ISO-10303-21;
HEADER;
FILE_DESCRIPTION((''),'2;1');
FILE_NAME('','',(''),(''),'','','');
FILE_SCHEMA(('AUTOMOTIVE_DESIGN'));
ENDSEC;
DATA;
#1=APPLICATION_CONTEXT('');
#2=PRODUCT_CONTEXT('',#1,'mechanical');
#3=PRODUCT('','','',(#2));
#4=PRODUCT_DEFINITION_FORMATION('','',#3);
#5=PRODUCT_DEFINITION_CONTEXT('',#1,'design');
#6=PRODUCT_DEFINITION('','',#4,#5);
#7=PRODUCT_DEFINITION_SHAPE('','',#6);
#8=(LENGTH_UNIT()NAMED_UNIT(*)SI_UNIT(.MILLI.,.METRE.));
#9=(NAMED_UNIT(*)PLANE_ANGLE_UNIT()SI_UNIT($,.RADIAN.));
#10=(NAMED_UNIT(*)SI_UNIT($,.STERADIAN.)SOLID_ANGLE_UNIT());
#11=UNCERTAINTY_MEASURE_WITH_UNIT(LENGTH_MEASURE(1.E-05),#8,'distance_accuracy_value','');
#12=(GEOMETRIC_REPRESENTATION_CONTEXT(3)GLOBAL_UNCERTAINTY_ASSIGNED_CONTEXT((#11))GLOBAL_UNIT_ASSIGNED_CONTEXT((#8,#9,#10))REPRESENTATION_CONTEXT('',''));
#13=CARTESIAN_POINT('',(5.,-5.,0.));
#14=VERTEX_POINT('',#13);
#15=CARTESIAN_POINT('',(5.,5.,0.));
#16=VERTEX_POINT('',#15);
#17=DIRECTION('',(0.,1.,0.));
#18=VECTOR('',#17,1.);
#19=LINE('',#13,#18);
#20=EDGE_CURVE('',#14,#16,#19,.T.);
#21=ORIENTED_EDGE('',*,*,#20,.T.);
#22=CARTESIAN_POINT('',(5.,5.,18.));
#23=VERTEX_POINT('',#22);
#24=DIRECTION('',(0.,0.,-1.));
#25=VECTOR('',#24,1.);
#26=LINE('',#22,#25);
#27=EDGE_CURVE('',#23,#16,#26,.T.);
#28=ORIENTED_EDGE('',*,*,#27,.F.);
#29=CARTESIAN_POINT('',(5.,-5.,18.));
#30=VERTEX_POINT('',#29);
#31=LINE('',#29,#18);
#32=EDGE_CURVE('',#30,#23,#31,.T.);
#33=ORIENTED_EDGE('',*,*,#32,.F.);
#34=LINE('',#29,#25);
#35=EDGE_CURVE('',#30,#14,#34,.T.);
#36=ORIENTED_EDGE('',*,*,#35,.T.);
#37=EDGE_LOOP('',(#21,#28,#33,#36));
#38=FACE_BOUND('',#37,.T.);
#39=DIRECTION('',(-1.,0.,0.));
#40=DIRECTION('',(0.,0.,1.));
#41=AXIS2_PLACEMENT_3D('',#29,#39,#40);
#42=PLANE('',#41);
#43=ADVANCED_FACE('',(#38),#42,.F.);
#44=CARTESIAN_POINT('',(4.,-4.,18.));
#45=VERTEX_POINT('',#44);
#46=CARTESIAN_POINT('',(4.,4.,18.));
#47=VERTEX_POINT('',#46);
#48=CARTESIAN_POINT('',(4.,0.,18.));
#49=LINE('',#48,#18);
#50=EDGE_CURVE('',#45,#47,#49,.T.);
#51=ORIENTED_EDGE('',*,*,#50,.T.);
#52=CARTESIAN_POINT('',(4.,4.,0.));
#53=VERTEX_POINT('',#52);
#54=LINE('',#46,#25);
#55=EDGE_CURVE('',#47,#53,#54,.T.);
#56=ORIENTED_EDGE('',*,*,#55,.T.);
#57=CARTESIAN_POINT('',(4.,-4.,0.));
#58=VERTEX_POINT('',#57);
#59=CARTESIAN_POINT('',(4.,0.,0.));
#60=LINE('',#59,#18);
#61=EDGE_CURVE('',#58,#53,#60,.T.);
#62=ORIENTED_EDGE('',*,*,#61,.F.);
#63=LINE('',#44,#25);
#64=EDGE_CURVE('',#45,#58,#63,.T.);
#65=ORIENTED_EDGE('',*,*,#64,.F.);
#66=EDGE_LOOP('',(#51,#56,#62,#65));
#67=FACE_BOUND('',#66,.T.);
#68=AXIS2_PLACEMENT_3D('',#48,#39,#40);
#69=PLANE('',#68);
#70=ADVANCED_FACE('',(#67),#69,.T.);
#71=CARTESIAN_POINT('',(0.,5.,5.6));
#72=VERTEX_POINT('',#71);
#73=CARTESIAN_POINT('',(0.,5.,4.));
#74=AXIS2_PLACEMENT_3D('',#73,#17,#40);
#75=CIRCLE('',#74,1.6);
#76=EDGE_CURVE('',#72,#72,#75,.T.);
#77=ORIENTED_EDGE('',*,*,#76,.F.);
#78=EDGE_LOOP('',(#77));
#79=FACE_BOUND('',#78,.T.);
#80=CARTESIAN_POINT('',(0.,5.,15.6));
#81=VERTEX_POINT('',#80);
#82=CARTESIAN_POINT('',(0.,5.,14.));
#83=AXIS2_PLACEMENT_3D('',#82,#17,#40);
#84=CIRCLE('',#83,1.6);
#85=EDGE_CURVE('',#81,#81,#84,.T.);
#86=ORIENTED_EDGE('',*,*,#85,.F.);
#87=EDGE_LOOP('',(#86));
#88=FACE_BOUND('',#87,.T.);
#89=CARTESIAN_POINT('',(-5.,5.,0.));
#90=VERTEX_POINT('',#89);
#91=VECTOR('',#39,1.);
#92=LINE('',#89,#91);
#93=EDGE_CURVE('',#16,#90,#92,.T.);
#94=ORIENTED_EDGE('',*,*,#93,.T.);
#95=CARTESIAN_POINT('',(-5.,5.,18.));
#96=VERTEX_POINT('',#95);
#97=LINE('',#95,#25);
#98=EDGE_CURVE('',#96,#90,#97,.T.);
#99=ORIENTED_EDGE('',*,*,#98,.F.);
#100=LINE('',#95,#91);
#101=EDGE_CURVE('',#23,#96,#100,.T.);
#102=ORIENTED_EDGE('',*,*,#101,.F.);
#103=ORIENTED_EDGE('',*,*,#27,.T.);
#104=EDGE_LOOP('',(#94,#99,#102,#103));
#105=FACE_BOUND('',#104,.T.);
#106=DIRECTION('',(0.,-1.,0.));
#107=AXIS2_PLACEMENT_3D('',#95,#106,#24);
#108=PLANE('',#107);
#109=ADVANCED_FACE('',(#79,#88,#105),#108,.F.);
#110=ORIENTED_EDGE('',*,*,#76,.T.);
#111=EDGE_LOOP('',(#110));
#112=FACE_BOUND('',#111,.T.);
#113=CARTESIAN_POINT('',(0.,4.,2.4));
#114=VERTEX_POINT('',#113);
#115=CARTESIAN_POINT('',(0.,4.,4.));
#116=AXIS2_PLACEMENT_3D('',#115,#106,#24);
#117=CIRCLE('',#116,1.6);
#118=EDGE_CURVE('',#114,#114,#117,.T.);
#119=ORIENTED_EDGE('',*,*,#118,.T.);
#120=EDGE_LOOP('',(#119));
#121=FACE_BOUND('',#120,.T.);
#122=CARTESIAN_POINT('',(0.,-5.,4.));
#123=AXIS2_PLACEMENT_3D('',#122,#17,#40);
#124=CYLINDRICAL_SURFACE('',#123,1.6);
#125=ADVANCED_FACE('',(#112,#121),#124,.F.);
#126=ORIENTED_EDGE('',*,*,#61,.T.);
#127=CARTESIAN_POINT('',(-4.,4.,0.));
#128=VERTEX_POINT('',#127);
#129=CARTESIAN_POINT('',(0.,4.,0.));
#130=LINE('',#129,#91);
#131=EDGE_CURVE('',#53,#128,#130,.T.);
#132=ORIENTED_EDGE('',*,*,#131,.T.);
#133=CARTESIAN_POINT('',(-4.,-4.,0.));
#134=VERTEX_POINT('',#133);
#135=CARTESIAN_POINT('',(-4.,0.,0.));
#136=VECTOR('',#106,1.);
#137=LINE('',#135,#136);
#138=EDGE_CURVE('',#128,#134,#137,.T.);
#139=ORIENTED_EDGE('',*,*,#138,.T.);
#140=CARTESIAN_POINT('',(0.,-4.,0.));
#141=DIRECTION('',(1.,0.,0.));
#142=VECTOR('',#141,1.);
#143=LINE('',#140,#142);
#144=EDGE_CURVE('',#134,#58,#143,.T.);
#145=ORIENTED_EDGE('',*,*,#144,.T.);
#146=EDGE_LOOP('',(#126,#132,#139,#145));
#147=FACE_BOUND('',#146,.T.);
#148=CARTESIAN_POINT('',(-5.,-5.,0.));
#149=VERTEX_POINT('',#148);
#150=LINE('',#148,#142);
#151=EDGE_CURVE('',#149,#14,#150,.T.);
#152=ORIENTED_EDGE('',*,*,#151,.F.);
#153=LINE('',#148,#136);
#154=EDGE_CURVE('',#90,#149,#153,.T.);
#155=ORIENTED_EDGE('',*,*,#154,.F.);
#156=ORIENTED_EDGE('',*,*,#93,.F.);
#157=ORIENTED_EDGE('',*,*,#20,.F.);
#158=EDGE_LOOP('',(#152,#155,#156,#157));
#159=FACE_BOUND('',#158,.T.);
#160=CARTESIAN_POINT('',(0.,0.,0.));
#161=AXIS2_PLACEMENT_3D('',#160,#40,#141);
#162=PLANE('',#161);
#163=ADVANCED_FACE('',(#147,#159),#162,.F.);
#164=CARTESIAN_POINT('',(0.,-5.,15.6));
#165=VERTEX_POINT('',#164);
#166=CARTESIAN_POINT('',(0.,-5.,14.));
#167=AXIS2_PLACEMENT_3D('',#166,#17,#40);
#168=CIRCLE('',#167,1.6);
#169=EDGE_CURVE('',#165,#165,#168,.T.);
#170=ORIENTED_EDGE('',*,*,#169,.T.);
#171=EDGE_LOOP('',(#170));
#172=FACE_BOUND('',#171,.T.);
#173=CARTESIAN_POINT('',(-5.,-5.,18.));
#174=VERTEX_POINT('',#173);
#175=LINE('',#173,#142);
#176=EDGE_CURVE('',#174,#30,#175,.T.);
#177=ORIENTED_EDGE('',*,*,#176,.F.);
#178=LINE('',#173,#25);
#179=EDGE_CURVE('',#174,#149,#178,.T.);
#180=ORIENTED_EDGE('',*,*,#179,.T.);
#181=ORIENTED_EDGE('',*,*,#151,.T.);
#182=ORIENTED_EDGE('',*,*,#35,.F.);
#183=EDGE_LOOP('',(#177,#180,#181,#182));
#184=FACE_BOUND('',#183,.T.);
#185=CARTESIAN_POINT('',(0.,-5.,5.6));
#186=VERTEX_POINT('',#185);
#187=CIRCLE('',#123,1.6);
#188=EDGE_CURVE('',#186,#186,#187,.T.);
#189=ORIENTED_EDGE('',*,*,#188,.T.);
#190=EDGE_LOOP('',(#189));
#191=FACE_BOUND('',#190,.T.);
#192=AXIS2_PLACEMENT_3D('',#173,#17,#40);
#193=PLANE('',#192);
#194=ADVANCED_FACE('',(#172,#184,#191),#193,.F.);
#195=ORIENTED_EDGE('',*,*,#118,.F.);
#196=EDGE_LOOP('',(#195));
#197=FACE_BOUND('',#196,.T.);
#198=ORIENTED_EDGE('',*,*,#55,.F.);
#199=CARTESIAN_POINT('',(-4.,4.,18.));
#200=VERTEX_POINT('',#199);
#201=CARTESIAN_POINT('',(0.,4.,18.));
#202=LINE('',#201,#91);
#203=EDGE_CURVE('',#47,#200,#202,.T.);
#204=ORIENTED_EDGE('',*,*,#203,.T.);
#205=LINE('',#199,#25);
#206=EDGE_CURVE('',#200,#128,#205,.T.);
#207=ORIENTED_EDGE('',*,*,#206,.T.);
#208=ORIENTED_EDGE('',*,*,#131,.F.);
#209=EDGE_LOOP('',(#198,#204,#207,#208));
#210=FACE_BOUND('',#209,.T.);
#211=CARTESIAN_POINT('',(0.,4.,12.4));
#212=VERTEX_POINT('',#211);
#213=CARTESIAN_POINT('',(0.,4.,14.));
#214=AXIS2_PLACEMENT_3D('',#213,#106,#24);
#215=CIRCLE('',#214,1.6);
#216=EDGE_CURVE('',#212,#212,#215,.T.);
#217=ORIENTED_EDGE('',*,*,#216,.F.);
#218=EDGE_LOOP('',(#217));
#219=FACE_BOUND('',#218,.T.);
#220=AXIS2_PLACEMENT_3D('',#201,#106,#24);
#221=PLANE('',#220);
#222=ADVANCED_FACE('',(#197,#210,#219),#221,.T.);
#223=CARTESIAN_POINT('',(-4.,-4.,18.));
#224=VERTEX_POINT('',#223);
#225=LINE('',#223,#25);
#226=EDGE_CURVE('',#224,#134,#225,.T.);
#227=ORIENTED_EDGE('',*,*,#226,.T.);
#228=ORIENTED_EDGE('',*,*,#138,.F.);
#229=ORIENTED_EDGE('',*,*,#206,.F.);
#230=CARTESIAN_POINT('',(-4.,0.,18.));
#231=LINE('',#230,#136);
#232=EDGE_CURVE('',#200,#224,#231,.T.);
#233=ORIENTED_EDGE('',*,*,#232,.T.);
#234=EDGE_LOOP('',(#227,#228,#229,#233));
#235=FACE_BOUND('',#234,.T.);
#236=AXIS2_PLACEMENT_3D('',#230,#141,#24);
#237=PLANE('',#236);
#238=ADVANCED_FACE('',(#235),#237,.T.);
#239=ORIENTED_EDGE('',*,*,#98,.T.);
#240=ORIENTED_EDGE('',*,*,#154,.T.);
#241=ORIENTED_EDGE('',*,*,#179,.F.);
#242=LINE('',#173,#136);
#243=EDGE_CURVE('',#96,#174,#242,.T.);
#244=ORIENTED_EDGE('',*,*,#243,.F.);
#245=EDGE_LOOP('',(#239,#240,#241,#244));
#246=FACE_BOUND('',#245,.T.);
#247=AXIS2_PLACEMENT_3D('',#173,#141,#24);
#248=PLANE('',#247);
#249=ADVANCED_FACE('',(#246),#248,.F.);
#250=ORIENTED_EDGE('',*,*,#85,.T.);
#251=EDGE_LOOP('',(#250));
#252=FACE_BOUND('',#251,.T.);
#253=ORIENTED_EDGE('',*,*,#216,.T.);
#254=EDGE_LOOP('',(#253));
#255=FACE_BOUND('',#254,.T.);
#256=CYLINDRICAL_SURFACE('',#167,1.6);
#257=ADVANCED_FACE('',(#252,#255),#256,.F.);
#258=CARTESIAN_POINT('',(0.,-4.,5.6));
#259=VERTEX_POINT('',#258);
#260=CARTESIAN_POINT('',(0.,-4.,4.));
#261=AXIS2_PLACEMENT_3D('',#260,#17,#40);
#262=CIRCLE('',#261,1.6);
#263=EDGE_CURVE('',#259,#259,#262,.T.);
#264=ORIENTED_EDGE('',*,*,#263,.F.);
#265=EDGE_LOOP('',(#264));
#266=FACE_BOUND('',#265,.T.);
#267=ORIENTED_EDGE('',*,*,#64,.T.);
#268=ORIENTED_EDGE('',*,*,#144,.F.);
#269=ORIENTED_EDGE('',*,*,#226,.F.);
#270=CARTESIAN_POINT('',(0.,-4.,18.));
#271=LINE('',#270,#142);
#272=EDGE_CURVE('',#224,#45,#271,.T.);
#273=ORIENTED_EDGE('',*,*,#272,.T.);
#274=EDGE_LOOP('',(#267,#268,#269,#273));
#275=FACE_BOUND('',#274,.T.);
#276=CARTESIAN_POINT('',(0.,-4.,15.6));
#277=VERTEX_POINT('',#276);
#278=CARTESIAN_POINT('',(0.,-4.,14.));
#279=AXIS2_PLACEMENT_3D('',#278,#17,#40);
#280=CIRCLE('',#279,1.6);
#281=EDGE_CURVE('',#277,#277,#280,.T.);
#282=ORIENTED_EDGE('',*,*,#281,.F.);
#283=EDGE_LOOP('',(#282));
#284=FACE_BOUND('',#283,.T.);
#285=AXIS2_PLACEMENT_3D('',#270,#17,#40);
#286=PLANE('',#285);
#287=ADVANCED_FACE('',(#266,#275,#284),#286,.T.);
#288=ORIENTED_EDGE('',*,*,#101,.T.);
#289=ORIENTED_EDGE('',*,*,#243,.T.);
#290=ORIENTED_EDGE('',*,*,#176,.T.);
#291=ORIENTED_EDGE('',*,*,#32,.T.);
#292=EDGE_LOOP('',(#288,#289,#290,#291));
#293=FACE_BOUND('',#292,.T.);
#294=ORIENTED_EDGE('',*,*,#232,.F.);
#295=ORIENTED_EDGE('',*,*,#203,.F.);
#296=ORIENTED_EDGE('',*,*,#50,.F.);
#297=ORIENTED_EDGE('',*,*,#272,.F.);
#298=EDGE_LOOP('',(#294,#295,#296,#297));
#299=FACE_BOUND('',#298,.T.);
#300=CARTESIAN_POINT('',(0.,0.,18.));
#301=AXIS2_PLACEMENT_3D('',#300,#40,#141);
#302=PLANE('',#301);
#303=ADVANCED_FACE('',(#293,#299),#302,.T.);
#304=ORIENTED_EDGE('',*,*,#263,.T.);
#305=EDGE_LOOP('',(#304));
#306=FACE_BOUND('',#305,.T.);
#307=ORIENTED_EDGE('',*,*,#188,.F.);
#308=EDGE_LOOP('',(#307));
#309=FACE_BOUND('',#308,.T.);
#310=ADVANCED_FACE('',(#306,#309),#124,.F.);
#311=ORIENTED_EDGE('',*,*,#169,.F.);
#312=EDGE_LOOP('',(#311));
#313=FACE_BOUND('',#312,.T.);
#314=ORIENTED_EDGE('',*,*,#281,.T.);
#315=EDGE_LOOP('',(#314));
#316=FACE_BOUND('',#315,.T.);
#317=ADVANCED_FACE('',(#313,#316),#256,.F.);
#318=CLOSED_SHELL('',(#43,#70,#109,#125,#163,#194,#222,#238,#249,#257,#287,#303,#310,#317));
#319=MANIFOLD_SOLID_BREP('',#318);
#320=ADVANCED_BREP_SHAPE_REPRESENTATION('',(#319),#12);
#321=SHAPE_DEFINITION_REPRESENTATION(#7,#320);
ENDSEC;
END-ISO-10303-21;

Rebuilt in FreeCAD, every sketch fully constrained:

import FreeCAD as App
import Part
import Sketcher
from FreeCAD import Vector

doc = App.newDocument("Part")
body = doc.addObject("PartDesign::Body", "Body")

# Sketch on XY plane
sketch1 = body.newObject("Sketcher::SketchObject", "Sketch")
sketch1.AttachmentSupport = (doc.getObject("XY_Plane"), [""])
sketch1.MapMode = "FlatFace"
sketch1.addGeometry([
    Part.LineSegment(Vector(-5, 5, 0), Vector(-5, -5, 0)),  # 0
    Part.LineSegment(Vector(-5, -5, 0), Vector(5, -5, 0)),  # 1
    Part.LineSegment(Vector(5, -5, 0), Vector(5, 5, 0)),  # 2
    Part.LineSegment(Vector(5, 5, 0), Vector(-5, 5, 0)),  # 3
    Part.LineSegment(Vector(4, -4, 0), Vector(-4, -4, 0)),  # 4
    Part.LineSegment(Vector(-4, -4, 0), Vector(-4, 4, 0)),  # 5
    Part.LineSegment(Vector(-4, 4, 0), Vector(4, 4, 0)),  # 6
    Part.LineSegment(Vector(4, 4, 0), Vector(4, -4, 0)),  # 7
], False)
sketch1.addConstraint([
    Sketcher.Constraint("Coincident", 0, 2, 1, 1),
    Sketcher.Constraint("Coincident", 1, 2, 2, 1),
    Sketcher.Constraint("Coincident", 2, 2, 3, 1),
    Sketcher.Constraint("Coincident", 3, 2, 0, 1),
    Sketcher.Constraint("Coincident", 4, 2, 5, 1),
    Sketcher.Constraint("Coincident", 5, 2, 6, 1),
    Sketcher.Constraint("Coincident", 6, 2, 7, 1),
    Sketcher.Constraint("Coincident", 7, 2, 4, 1),
    Sketcher.Constraint("Vertical", 0),
    Sketcher.Constraint("Horizontal", 1),
    Sketcher.Constraint("Vertical", 2),
    Sketcher.Constraint("Horizontal", 3),
    Sketcher.Constraint("Horizontal", 4),
    Sketcher.Constraint("Vertical", 5),
    Sketcher.Constraint("Horizontal", 6),
    Sketcher.Constraint("Vertical", 7),
    Sketcher.Constraint("Symmetric", 0, 2, 2, 2, -1, 1),
    Sketcher.Constraint("Symmetric", 4, 2, 6, 2, -1, 1),
    Sketcher.Constraint("Equal", 3, 0),
    Sketcher.Constraint("Equal", 6, 5),
    Sketcher.Constraint("DistanceX", 1, 1, 1, 2, 10.0),
    Sketcher.Constraint("DistanceX", 4, 2, 4, 1, 8.0),
])
pad1 = body.newObject("PartDesign::Pad", "Pad")
pad1.Profile = sketch1
pad1.Length = 18

# Sketch on XZ plane
sketch2 = body.newObject("Sketcher::SketchObject", "Sketch001")
sketch2.AttachmentSupport = (doc.getObject("XZ_Plane"), [""])
sketch2.MapMode = "FlatFace"
sketch2.AttachmentOffset = App.Placement(Vector(0, 0, -5), App.Rotation())
sketch2.addGeometry([
    Part.Circle(Vector(0, 4, 0), Vector(0, 0, 1), 1.6),
    Part.Circle(Vector(0, 14, 0), Vector(0, 0, 1), 1.6),
], False)
sketch2.addConstraint([
    Sketcher.Constraint("Equal", 0, 1),
    Sketcher.Constraint("PointOnObject", 0, 3, -2),
    Sketcher.Constraint("PointOnObject", 1, 3, -2),
    Sketcher.Constraint("Diameter", 0, 3.2),
    Sketcher.Constraint("DistanceY", -1, 1, 0, 3, 4.0),
    Sketcher.Constraint("DistanceY", -1, 1, 1, 3, 14.0),
])
pocket1 = body.newObject("PartDesign::Pocket", "Pocket")
pocket1.Profile = sketch2
pocket1.Type = "ThroughAll"
pocket1.Reversed = True

doc.recompute()
